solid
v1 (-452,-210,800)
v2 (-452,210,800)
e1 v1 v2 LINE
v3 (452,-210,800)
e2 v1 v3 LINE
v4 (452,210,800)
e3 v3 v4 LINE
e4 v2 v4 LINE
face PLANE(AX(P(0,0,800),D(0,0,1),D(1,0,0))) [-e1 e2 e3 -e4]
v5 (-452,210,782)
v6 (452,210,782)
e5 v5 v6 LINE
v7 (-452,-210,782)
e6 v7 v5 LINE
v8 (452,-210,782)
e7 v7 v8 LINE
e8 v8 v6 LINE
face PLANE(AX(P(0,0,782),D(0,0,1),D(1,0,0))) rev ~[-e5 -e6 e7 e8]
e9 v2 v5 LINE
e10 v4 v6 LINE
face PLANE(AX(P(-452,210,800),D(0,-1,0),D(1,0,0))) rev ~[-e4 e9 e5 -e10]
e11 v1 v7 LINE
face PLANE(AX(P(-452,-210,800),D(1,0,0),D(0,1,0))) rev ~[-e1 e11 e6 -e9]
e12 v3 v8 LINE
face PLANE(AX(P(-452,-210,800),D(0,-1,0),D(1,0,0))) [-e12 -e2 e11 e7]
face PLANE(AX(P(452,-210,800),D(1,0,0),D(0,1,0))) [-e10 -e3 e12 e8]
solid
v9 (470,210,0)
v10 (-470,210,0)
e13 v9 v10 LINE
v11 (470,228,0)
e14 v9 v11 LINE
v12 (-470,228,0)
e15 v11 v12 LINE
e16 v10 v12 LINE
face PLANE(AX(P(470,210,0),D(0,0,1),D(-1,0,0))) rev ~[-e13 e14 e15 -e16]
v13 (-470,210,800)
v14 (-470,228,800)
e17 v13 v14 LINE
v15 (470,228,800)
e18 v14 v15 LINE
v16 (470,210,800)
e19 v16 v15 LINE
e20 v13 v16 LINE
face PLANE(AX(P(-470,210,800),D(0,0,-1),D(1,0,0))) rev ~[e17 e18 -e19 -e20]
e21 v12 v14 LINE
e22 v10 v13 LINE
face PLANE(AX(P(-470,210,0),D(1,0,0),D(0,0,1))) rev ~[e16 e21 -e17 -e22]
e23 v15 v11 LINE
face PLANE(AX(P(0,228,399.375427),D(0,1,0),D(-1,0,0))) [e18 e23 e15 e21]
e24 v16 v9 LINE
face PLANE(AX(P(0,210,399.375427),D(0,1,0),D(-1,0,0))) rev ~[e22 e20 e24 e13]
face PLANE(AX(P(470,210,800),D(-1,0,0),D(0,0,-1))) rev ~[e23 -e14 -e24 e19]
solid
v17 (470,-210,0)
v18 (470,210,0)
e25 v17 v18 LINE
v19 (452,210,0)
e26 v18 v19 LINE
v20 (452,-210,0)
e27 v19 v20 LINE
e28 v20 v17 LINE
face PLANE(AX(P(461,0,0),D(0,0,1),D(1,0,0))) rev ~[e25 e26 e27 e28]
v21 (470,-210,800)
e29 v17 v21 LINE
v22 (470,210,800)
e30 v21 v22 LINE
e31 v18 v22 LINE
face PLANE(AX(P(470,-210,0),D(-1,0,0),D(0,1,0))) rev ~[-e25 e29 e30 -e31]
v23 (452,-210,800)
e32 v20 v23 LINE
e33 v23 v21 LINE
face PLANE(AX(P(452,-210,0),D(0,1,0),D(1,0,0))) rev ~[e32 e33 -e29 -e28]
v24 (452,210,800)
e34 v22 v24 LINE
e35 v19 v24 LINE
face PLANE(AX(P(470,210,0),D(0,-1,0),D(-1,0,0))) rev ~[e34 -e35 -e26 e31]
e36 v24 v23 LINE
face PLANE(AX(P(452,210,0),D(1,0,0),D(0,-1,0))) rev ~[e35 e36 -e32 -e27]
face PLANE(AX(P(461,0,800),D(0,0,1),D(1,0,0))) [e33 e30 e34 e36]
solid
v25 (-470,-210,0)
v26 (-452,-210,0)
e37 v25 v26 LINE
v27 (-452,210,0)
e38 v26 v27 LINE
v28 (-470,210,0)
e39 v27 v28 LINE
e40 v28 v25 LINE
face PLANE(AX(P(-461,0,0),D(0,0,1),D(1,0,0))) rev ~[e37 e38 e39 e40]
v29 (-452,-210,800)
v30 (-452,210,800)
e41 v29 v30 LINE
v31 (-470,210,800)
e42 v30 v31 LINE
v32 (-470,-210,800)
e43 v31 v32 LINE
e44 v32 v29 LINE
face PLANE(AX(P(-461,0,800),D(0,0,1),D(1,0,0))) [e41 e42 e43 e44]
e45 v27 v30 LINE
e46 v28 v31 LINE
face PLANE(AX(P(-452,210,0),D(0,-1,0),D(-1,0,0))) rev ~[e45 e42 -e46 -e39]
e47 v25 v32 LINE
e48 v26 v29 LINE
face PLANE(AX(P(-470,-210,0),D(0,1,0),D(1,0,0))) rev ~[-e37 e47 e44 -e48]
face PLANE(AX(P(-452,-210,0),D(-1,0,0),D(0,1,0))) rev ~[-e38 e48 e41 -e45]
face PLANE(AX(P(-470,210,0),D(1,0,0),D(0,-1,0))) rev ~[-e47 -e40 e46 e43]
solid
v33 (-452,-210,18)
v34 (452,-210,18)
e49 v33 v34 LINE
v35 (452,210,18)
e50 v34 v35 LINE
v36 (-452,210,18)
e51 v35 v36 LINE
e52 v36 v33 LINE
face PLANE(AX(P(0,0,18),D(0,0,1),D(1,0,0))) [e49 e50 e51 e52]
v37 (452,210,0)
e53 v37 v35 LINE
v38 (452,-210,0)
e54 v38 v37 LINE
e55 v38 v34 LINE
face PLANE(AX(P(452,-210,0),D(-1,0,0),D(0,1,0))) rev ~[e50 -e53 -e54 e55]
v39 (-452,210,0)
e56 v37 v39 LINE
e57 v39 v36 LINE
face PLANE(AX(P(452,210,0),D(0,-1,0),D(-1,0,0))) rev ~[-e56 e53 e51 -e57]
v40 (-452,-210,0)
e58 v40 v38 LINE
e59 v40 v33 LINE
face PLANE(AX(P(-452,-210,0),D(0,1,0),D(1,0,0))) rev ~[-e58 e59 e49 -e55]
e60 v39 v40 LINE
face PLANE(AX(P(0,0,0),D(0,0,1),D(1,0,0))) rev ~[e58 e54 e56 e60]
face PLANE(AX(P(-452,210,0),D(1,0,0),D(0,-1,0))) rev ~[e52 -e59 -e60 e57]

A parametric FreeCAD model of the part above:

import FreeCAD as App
import Part
import Sketcher
Q = App.Units.Quantity

doc = App.newDocument("Part")
body = doc.addObject("PartDesign::Body", "Body")

sketch1 = body.newObject("Sketcher::SketchObject", "Sketch")
sketch1.AttachmentSupport = (doc.getObject("XY_Plane"), [""])
sketch1.MapMode = "FlatFace"
sketch1.addGeometry([
    Part.LineSegment(App.Vector(-470, -210, 0), App.Vector(-452, -210, 0)),
    Part.LineSegment(App.Vector(-452, -210, 0), App.Vector(-452, 210, 0)),
    Part.LineSegment(App.Vector(-452, 210, 0), App.Vector(-470, 210, 0)),
    Part.LineSegment(App.Vector(-470, 210, 0), App.Vector(-470, -210, 0)),
], False)
sketch1.addConstraint([
    Sketcher.Constraint("Coincident", 0, 2, 1, 1),
    Sketcher.Constraint("Coincident", 1, 2, 2, 1),
    Sketcher.Constraint("Coincident", 2, 2, 3, 1),
    Sketcher.Constraint("Coincident", 3, 2, 0, 1),
    Sketcher.Constraint("Horizontal", 0),
    Sketcher.Constraint("Vertical", 1),
    Sketcher.Constraint("Horizontal", 2),
    Sketcher.Constraint("Vertical", 3),
    Sketcher.Constraint("DistanceX", 0, 1, 0, 2, Q("18 mm")),
    Sketcher.Constraint("DistanceY", 1, 1, 1, 2, Q("420 mm")),
    Sketcher.Constraint("DistanceX", 0, 2, -1, 1, Q("452 mm")),
    Sketcher.Constraint("DistanceY", 0, 2, -1, 1, Q("210 mm")),
])
pad1 = body.newObject("PartDesign::Pad", "Pad")
pad1.Profile = sketch1
pad1.Length = 800
body2 = doc.addObject("PartDesign::Body", "Body001")

sketch2 = body2.newObject("Sketcher::SketchObject", "Sketch001")
sketch2.AttachmentSupport = (doc.getObject("XY_Plane001"), [""])
sketch2.MapMode = "FlatFace"
sketch2.addGeometry([
    Part.LineSegment(App.Vector(452, -210, 0), App.Vector(470, -210, 0)),
    Part.LineSegment(App.Vector(470, -210, 0), App.Vector(470, 210, 0)),
    Part.LineSegment(App.Vector(470, 210, 0), App.Vector(452, 210, 0)),
    Part.LineSegment(App.Vector(452, 210, 0), App.Vector(452, -210, 0)),
], False)
sketch2.addConstraint([
    Sketcher.Constraint("Coincident", 0, 2, 1, 1),
    Sketcher.Constraint("Coincident", 1, 2, 2, 1),
    Sketcher.Constraint("Coincident", 2, 2, 3, 1),
    Sketcher.Constraint("Coincident", 3, 2, 0, 1),
    Sketcher.Constraint("Horizontal", 0),
    Sketcher.Constraint("Vertical", 1),
    Sketcher.Constraint("Horizontal", 2),
    Sketcher.Constraint("Vertical", 3),
    Sketcher.Constraint("DistanceX", 0, 1, 0, 2, Q("18 mm")),
    Sketcher.Constraint("DistanceY", 1, 1, 1, 2, Q("420 mm")),
    Sketcher.Constraint("DistanceX", -1, 1, 0, 2, Q("470 mm")),
    Sketcher.Constraint("DistanceY", 0, 2, -1, 1, Q("210 mm")),
])
pad2 = body2.newObject("PartDesign::Pad", "Pad001")
pad2.Profile = sketch2
pad2.Length = 800
body3 = doc.addObject("PartDesign::Body", "Body002")

sketch3 = body3.newObject("Sketcher::SketchObject", "Sketch002")
sketch3.AttachmentSupport = (doc.getObject("XY_Plane002"), [""])
sketch3.MapMode = "FlatFace"
sketch3.AttachmentOffset = App.Placement(App.Vector(0, 0, 800), App.Rotation())
sketch3.addGeometry([
    Part.LineSegment(App.Vector(-452, 210, 0), App.Vector(-452, -210, 0)),
    Part.LineSegment(App.Vector(-452, -210, 0), App.Vector(452, -210, 0)),
    Part.LineSegment(App.Vector(452, -210, 0), App.Vector(452, 210, 0)),
    Part.LineSegment(App.Vector(452, 210, 0), App.Vector(-452, 210, 0)),
], False)
sketch3.addConstraint([
    Sketcher.Constraint("Coincident", 0, 2, 1, 1),
    Sketcher.Constraint("Coincident", 1, 2, 2, 1),
    Sketcher.Constraint("Coincident", 2, 2, 3, 1),
    Sketcher.Constraint("Coincident", 3, 2, 0, 1),
    Sketcher.Constraint("Vertical", 0),
    Sketcher.Constraint("Horizontal", 1),
    Sketcher.Constraint("Vertical", 2),
    Sketcher.Constraint("Horizontal", 3),
    Sketcher.Constraint("Symmetric", 0, 2, 2, 2, -1, 1),
    Sketcher.Constraint("DistanceX", 1, 1, 1, 2, Q("904 mm")),
    Sketcher.Constraint("DistanceY", 0, 2, 0, 1, Q("420 mm")),
])
pad3 = body3.newObject("PartDesign::Pad", "Pad002")
pad3.Profile = sketch3
pad3.Length = 18
pad3.Reversed = True
body4 = doc.addObject("PartDesign::Body", "Body003")

sketch4 = body4.newObject("Sketcher::SketchObject", "Sketch003")
sketch4.AttachmentSupport = (doc.getObject("XY_Plane003"), [""])
sketch4.MapMode = "FlatFace"
sketch4.addGeometry([
    Part.LineSegment(App.Vector(-452, -210, 0), App.Vector(452, -210, 0)),
    Part.LineSegment(App.Vector(452, -210, 0), App.Vector(452, 210, 0)),
    Part.LineSegment(App.Vector(452, 210, 0), App.Vector(-452, 210, 0)),
    Part.LineSegment(App.Vector(-452, 210, 0), App.Vector(-452, -210, 0)),
], False)
sketch4.addConstraint([
    Sketcher.Constraint("Coincident", 0, 2, 1, 1),
    Sketcher.Constraint("Coincident", 1, 2, 2, 1),
    Sketcher.Constraint("Coincident", 2, 2, 3, 1),
    Sketcher.Constraint("Coincident", 3, 2, 0, 1),
    Sketcher.Constraint("Horizontal", 0),
    Sketcher.Constraint("Vertical", 1),
    Sketcher.Constraint("Horizontal", 2),
    Sketcher.Constraint("Vertical", 3),
    Sketcher.Constraint("Symmetric", 0, 2, 2, 2, -1, 1),
    Sketcher.Constraint("DistanceX", 0, 1, 0, 2, Q("904 mm")),
    Sketcher.Constraint("DistanceY", 1, 1, 1, 2, Q("420 mm")),
])
pad4 = body4.newObject("PartDesign::Pad", "Pad003")
pad4.Profile = sketch4
pad4.Length = 18
body5 = doc.addObject("PartDesign::Body", "Body004")

sketch5 = body5.newObject("Sketcher::SketchObject", "Sketch004")
sketch5.AttachmentSupport = (doc.getObject("XZ_Plane004"), [""])
sketch5.MapMode = "FlatFace"
sketch5.AttachmentOffset = App.Placement(App.Vector(0, 0, -210), App.Rotation())
sketch5.addGeometry([
    Part.LineSegment(App.Vector(470, 800, 0), App.Vector(470, 0, 0)),
    Part.LineSegment(App.Vector(470, 0, 0), App.Vector(-470, 0, 0)),
    Part.LineSegment(App.Vector(-470, 0, 0), App.Vector(-470, 800, 0)),
    Part.LineSegment(App.Vector(-470, 800, 0), App.Vector(470, 800, 0)),
], False)
sketch5.addConstraint([
    Sketcher.Constraint("Coincident", 0, 2, 1, 1),
    Sketcher.Constraint("Coincident", 1, 2, 2, 1),
    Sketcher.Constraint("Coincident", 2, 2, 3, 1),
    Sketcher.Constraint("Coincident", 3, 2, 0, 1),
    Sketcher.Constraint("Vertical", 0),
    Sketcher.Constraint("Horizontal", 1),
    Sketcher.Constraint("Vertical", 2),
    Sketcher.Constraint("Horizontal", 3),
    Sketcher.Constraint("Symmetric", 0, 2, 1, 2, -1, 1),
    Sketcher.Constraint("DistanceX", 1, 2, 1, 1, Q("940 mm")),
    Sketcher.Constraint("DistanceY", 0, 2, 0, 1, Q("800 mm")),
])
pad5 = body5.newObject("PartDesign::Pad", "Pad004")
pad5.Profile = sketch5
pad5.Length = 18
pad5.Reversed = True

doc.recompute()
